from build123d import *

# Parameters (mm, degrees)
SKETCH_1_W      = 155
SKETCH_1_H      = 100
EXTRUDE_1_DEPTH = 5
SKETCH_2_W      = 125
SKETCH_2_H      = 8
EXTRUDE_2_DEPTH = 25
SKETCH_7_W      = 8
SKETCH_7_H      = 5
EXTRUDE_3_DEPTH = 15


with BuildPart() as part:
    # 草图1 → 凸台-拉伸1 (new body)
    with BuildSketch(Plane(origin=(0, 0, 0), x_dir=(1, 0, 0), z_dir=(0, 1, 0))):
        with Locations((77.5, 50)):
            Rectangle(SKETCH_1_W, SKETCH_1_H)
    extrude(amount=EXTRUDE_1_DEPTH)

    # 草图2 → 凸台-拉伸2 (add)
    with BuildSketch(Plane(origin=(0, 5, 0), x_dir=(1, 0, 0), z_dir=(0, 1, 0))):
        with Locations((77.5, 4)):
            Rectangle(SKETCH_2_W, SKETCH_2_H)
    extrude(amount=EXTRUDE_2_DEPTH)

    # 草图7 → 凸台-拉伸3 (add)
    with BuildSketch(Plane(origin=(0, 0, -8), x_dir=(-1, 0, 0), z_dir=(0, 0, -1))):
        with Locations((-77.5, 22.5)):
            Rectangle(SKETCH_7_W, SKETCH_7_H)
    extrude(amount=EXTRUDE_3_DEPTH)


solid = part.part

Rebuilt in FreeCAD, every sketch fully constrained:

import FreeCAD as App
import Part
import Sketcher
Q = App.Units.Quantity


def add_polygon(sketch, points):
    """Adds a closed chain of lines whose ends are joined by coincident constraints."""
    first, n = sketch.GeometryCount, len(points)
    for a, b in zip(points, points[1:] + points[:1]):
        sketch.addGeometry(Part.LineSegment(App.Vector(*a, 0), App.Vector(*b, 0)), False)
    for i in range(n):
        sketch.addConstraint(Sketcher.Constraint("Coincident", first + i, 2, first + (i + 1) % n, 1))

doc = App.newDocument("Part")
body = doc.addObject("PartDesign::Body", "Body")

# Sketch on XZ plane
sketch1 = body.newObject("Sketcher::SketchObject", "Sketch")
sketch1.AttachmentSupport = (doc.getObject("XZ_Plane"), [""])
sketch1.MapMode = "FlatFace"
add_polygon(sketch1, [(0, -100), (0, 0), (155, 0), (155, -100)])  # lines 0-3
sketch1.addConstraint(Sketcher.Constraint("Vertical", 0))
sketch1.addConstraint(Sketcher.Constraint("Horizontal", 1))
sketch1.addConstraint(Sketcher.Constraint("Vertical", 2))
sketch1.addConstraint(Sketcher.Constraint("Horizontal", 3))
sketch1.addConstraint(Sketcher.Constraint("Coincident", 0, 2, -1, 1))
sketch1.addConstraint(Sketcher.Constraint("DistanceX", 1, 1, 1, 2, Q("155 mm")))
sketch1.addConstraint(Sketcher.Constraint("DistanceY", 0, 1, 0, 2, Q("100 mm")))
pad1 = body.newObject("PartDesign::Pad", "Pad")
pad1.Profile = sketch1
pad1.Length = 5
pad1.Reversed = True

# Sketch on XZ plane
sketch2 = body.newObject("Sketcher::SketchObject", "Sketch001")
sketch2.AttachmentSupport = (doc.getObject("XZ_Plane"), [""])
sketch2.MapMode = "FlatFace"
sketch2.AttachmentOffset = App.Placement(App.Vector(0, 0, -5), App.Rotation())
add_polygon(sketch2, [(15, -8), (15, 0), (140, 0), (140, -8)])  # lines 0-3
sketch2.addConstraint(Sketcher.Constraint("Vertical", 0))
sketch2.addConstraint(Sketcher.Constraint("Horizontal", 1))
sketch2.addConstraint(Sketcher.Constraint("Vertical", 2))
sketch2.addConstraint(Sketcher.Constraint("Horizontal", 3))
sketch2.addConstraint(Sketcher.Constraint("PointOnObject", 0, 2, -1))
sketch2.addConstraint(Sketcher.Constraint("DistanceX", 1, 1, 1, 2, Q("125 mm")))
sketch2.addConstraint(Sketcher.Constraint("DistanceY", 0, 1, 0, 2, Q("8 mm")))
sketch2.addConstraint(Sketcher.Constraint("DistanceX", -1, 1, 0, 2, Q("15 mm")))
pad2 = body.newObject("PartDesign::Pad", "Pad001")
pad2.Profile = sketch2
pad2.Length = 25
pad2.Reversed = True

# Sketch on XY plane
sketch3 = body.newObject("Sketcher::SketchObject", "Sketch002")
sketch3.AttachmentSupport = (doc.getObject("XY_Plane"), [""])
sketch3.MapMode = "FlatFace"
sketch3.AttachmentOffset = App.Placement(App.Vector(0, 0, -8), App.Rotation())
add_polygon(sketch3, [(81.5, 25), (81.5, 20), (73.5, 20), (73.5, 25)])  # lines 0-3
sketch3.addConstraint(Sketcher.Constraint("Vertical", 0))
sketch3.addConstraint(Sketcher.Constraint("Horizontal", 1))
sketch3.addConstraint(Sketcher.Constraint("Vertical", 2))
sketch3.addConstraint(Sketcher.Constraint("Horizontal", 3))
sketch3.addConstraint(Sketcher.Constraint("DistanceX", 1, 2, 1, 1, Q("8 mm")))
sketch3.addConstraint(Sketcher.Constraint("DistanceY", 0, 2, 0, 1, Q("5 mm")))
sketch3.addConstraint(Sketcher.Constraint("DistanceY", -1, 1, 0, 2, Q("20 mm")))
sketch3.addConstraint(Sketcher.Constraint("DistanceX", -1, 1, 0, 2, Q("81.5 mm")))
pad3 = body.newObject("PartDesign::Pad", "Pad002")
pad3.Profile = sketch3
pad3.Length = 15
pad3.Reversed = True

doc.recompute()
